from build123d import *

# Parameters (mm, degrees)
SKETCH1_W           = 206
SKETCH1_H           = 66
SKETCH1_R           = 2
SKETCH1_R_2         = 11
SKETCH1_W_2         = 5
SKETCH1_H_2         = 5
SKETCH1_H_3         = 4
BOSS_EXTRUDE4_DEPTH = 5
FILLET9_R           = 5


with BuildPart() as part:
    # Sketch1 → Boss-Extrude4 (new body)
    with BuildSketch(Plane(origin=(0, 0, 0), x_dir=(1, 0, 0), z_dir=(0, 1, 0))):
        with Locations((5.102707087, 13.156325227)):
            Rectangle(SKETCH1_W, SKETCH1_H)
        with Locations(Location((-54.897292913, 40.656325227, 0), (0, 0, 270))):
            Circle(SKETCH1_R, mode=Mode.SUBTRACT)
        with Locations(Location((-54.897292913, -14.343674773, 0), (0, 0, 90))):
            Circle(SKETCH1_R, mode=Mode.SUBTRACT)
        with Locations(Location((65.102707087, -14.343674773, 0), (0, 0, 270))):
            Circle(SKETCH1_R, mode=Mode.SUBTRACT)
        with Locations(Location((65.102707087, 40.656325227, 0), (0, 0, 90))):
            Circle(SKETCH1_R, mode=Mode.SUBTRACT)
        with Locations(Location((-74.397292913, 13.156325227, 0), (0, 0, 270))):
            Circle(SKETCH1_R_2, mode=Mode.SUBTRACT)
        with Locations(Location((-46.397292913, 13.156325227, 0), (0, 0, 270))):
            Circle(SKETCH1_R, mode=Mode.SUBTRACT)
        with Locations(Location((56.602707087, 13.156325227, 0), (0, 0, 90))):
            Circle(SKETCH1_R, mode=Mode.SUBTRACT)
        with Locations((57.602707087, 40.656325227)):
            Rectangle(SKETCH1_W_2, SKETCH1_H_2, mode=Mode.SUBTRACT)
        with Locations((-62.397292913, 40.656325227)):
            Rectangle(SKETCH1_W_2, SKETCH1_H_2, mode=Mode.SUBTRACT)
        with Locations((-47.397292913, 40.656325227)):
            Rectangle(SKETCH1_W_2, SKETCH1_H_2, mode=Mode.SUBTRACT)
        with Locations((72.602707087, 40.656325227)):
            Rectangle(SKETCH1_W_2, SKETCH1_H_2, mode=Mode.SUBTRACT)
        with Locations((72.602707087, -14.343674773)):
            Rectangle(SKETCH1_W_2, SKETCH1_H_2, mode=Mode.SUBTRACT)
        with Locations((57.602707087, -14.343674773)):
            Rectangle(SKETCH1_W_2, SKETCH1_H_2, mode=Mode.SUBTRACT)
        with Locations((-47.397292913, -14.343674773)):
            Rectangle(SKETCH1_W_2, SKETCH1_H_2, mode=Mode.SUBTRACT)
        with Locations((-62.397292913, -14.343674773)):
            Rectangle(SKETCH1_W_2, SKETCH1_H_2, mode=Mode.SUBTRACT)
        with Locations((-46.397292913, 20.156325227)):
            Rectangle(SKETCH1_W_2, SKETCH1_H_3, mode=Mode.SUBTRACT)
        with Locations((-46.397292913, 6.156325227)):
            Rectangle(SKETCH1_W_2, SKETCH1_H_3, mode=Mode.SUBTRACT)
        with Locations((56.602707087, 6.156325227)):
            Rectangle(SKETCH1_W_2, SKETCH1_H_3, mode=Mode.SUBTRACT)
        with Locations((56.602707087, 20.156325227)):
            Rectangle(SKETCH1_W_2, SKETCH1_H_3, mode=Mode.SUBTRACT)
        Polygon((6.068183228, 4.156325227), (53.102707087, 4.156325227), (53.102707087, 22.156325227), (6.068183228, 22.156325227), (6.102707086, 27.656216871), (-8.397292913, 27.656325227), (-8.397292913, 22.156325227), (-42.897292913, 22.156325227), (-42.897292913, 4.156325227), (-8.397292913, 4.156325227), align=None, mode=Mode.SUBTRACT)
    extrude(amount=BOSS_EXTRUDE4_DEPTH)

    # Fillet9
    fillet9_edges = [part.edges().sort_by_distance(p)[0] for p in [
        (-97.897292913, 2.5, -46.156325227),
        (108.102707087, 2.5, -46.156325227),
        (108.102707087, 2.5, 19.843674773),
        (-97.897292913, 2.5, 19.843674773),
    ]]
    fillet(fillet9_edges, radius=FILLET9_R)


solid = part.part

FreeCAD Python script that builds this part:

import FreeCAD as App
import Part
import Sketcher

V = App.Vector
Q = App.Units.Quantity


def edges_at(feature, points):
    """Names of the edges that pass closest to the given points."""
    edges = feature.Shape.Edges
    near = lambda p: min(range(len(edges)), key=lambda i: edges[i].distToShape(Part.Vertex(*p))[0])
    return sorted({f"Edge{near(p) + 1}" for p in points})


def add_polygon(sketch, points):
    """Adds a closed chain of lines whose ends are joined by coincident constraints."""
    first, n = sketch.GeometryCount, len(points)
    for a, b in zip(points, points[1:] + points[:1]):
        sketch.addGeometry(Part.LineSegment(App.Vector(*a, 0), App.Vector(*b, 0)), False)
    for i in range(n):
        sketch.addConstraint(Sketcher.Constraint("Coincident", first + i, 2, first + (i + 1) % n, 1))

doc = App.newDocument("Part")
params = doc.addObject("Spreadsheet::Sheet", "Params")
for row, (alias, value) in enumerate([
    ("sketch1_diameter", "4 mm"),
    ("sketch1_diameter2", "22 mm"),
    ("sketch1_width", "206 mm"),
    ("sketch1_width2", "5 mm"),
    ("sketch1_width3", "96 mm"),
    ("pad1_length", "5 mm"),
    ("fillet_radius", "5 mm"),
], start=1):
    params.set(f"A{row}", alias)
    params.set(f"B{row}", "=" + value)
    params.setAlias(f"B{row}", alias)

body = doc.addObject("PartDesign::Body", "Body")

# Sketch on XZ plane
sketch1 = body.newObject("Sketcher::SketchObject", "Sketch")
sketch1.AttachmentSupport = (doc.getObject("XZ_Plane"), [""])
sketch1.MapMode = "FlatFace"
add_polygon(sketch1, [(-97.9, -46.2), (-97.9, 19.8), (108.1, 19.8), (108.1, -46.2)])  # lines 0-3
add_polygon(sketch1, [(-59.9, 16.8), (-64.9, 16.8), (-64.9, 11.8), (-59.9, 11.8)])  # lines 4-7
sketch1.addGeometry(Part.Circle(V(-54.9, 14.3, 0), V(0, 0, 1), 2), False)  # 8
add_polygon(sketch1, [(-44.9, 16.8), (-49.9, 16.8), (-49.9, 11.8), (-44.9, 11.8)])  # lines 9-12
add_polygon(sketch1, [(-43.9, -4.2), (-48.9, -4.2), (-48.9, -8.2), (-43.9, -8.2)])  # lines 13-16
add_polygon(sketch1, [(60.1, 16.8), (55.1, 16.8), (55.1, 11.8), (60.1, 11.8)])  # lines 17-20
sketch1.addGeometry(Part.Circle(V(65.1, 14.3, 0), V(0, 0, 1), 2), False)  # 21
add_polygon(sketch1, [(75.1, 16.8), (70.1, 16.8), (70.1, 11.8), (75.1, 11.8)])  # lines 22-25
add_polygon(sketch1, [(59.1, -4.2), (54.1, -4.2), (54.1, -8.2), (59.1, -8.2)])  # lines 26-29
sketch1.addGeometry(Part.Circle(V(-74.4, -13.2, 0), V(0, 0, 1), 11), False)  # 30
sketch1.addGeometry(Part.Circle(V(-46.4, -13.2, 0), V(0, 0, 1), 2), False)  # 31
add_polygon(sketch1, [(-43.9, -18.2), (-48.9, -18.2), (-48.9, -22.2), (-43.9, -22.2)])  # lines 32-35
add_polygon(sketch1, [(-59.9, -38.2), (-64.9, -38.2), (-64.9, -43.2), (-59.9, -43.2)])  # lines 36-39
sketch1.addGeometry(Part.Circle(V(-54.9, -40.7, 0), V(0, 0, 1), 2), False)  # 40
add_polygon(sketch1, [(-44.9, -38.2), (-49.9, -38.2), (-49.9, -43.2), (-44.9, -43.2)])  # lines 41-44
add_polygon(sketch1, [(53.1, -4.2), (-42.9, -4.2), (-42.9, -22.2), (-8.4, -22.2), (-8.4, -27.7), (6.1, -27.7), (6.1, -22.2), (53.1, -22.2)])  # lines 45-52
sketch1.addGeometry(Part.Circle(V(56.6, -13.2, 0), V(0, 0, 1), 2), False)  # 53
add_polygon(sketch1, [(59.1, -18.2), (54.1, -18.2), (54.1, -22.2), (59.1, -22.2)])  # lines 54-57
add_polygon(sketch1, [(60.1, -38.2), (55.1, -38.2), (55.1, -43.2), (60.1, -43.2)])  # lines 58-61
sketch1.addGeometry(Part.Circle(V(65.1, -40.7, 0), V(0, 0, 1), 2), False)  # 62
add_polygon(sketch1, [(75.1, -38.2), (70.1, -38.2), (70.1, -43.2), (75.1, -43.2)])  # lines 63-66
sketch1.addConstraint([
    Sketcher.Constraint("Vertical", 0),
    Sketcher.Constraint("Horizontal", 1),
    Sketcher.Constraint("Vertical", 2),
    Sketcher.Constraint("Horizontal", 3),
    Sketcher.Constraint("Horizontal", 4),
    Sketcher.Constraint("Vertical", 5),
    Sketcher.Constraint("Horizontal", 6),
    Sketcher.Constraint("Vertical", 7),
    Sketcher.Constraint("Horizontal", 9),
    Sketcher.Constraint("Vertical", 10),
    Sketcher.Constraint("Horizontal", 11),
    Sketcher.Constraint("Vertical", 12),
    Sketcher.Constraint("Horizontal", 13),
    Sketcher.Constraint("Vertical", 14),
    Sketcher.Constraint("Horizontal", 15),
    Sketcher.Constraint("Vertical", 16),
    Sketcher.Constraint("Horizontal", 17),
    Sketcher.Constraint("Vertical", 18),
    Sketcher.Constraint("Horizontal", 19),
    Sketcher.Constraint("Vertical", 20),
    Sketcher.Constraint("Horizontal", 22),
    Sketcher.Constraint("Vertical", 23),
    Sketcher.Constraint("Horizontal", 24),
    Sketcher.Constraint("Vertical", 25),
    Sketcher.Constraint("Horizontal", 26),
    Sketcher.Constraint("Vertical", 27),
    Sketcher.Constraint("Horizontal", 28),
    Sketcher.Constraint("Vertical", 29),
    Sketcher.Constraint("Horizontal", 32),
    Sketcher.Constraint("Vertical", 33),
    Sketcher.Constraint("Horizontal", 34),
    Sketcher.Constraint("Vertical", 35),
    Sketcher.Constraint("Horizontal", 36),
    Sketcher.Constraint("Vertical", 37),
    Sketcher.Constraint("Horizontal", 38),
    Sketcher.Constraint("Vertical", 39),
    Sketcher.Constraint("Horizontal", 41),
    Sketcher.Constraint("Vertical", 42),
    Sketcher.Constraint("Horizontal", 43),
    Sketcher.Constraint("Vertical", 44),
    Sketcher.Constraint("Horizontal", 45),
    Sketcher.Constraint("Vertical", 46),
    Sketcher.Constraint("Horizontal", 47),
    Sketcher.Constraint("Vertical", 48),
    Sketcher.Constraint("Horizontal", 51),
    Sketcher.Constraint("Vertical", 52),
    Sketcher.Constraint("Horizontal", 54),
    Sketcher.Constraint("Vertical", 55),
    Sketcher.Constraint("Horizontal", 56),
    Sketcher.Constraint("Vertical", 57),
    Sketcher.Constraint("Horizontal", 58),
    Sketcher.Constraint("Vertical", 59),
    Sketcher.Constraint("Horizontal", 60),
    Sketcher.Constraint("Vertical", 61),
    Sketcher.Constraint("Horizontal", 63),
    Sketcher.Constraint("Vertical", 64),
    Sketcher.Constraint("Horizontal", 65),
    Sketcher.Constraint("Vertical", 66),
    Sketcher.Constraint("Equal", 8, 21),
    Sketcher.Constraint("Equal", 21, 31),
    Sketcher.Constraint("Equal", 31, 40),
    Sketcher.Constraint("Equal", 40, 53),
    Sketcher.Constraint("Equal", 53, 62),
    Sketcher.Constraint("Horizontal", 8, 3, 21, 3),
    Sketcher.Constraint("Horizontal", 30, 3, 31, 3),
    Sketcher.Constraint("Horizontal", 31, 3, 53, 3),
    Sketcher.Constraint("Horizontal", 40, 3, 62, 3),
    Sketcher.Constraint("Horizontal", 7, 2, 9, 2),
    Sketcher.Constraint("Horizontal", 6, 2, 10, 2),
    Sketcher.Constraint("Horizontal", 12, 2, 17, 2),
    Sketcher.Constraint("Horizontal", 11, 2, 18, 2),
    Sketcher.Constraint("Horizontal", 20, 2, 22, 2),
    Sketcher.Constraint("Horizontal", 19, 2, 23, 2),
    Sketcher.Constraint("Horizontal", 16, 2, 26, 2),
    Sketcher.Constraint("Horizontal", 15, 2, 27, 2),
    Sketcher.Constraint("Horizontal", 39, 2, 41, 2),
    Sketcher.Constraint("Horizontal", 38, 2, 42, 2),
    Sketcher.Constraint("Horizontal", 29, 2, 45, 2),
    Sketcher.Constraint("Horizontal", 34, 2, 46, 2),
    Sketcher.Constraint("Horizontal", 47, 2, 50, 2),
    Sketcher.Constraint("Horizontal", 35, 2, 54, 2),
    Sketcher.Constraint("Horizontal", 51, 2, 55, 2),
    Sketcher.Constraint("Horizontal", 44, 2, 58, 2),
    Sketcher.Constraint("Horizontal", 43, 2, 59, 2),
    Sketcher.Constraint("Horizontal", 61, 2, 63, 2),
    Sketcher.Constraint("Horizontal", 60, 2, 64, 2),
    Sketcher.Constraint("Vertical", 8, 3, 40, 3),
    Sketcher.Constraint("Vertical", 21, 3, 62, 3),
    Sketcher.Constraint("Vertical", 14, 2, 32, 2),
    Sketcher.Constraint("Vertical", 16, 2, 34, 2),
    Sketcher.Constraint("Vertical", 5, 2, 36, 2),
    Sketcher.Constraint("Vertical", 7, 2, 38, 2),
    Sketcher.Constraint("Vertical", 10, 2, 41, 2),
    Sketcher.Constraint("Vertical", 12, 2, 43, 2),
    Sketcher.Constraint("Vertical", 27, 2, 54, 2),
    Sketcher.Constraint("Vertical", 29, 2, 56, 2),
    Sketcher.Constraint("Vertical", 18, 2, 58, 2),
    Sketcher.Constraint("Vertical", 20, 2, 60, 2),
    Sketcher.Constraint("Vertical", 23, 2, 63, 2),
    Sketcher.Constraint("Vertical", 25, 2, 65, 2),
    Sketcher.Constraint("Equal", 6, 9),
    Sketcher.Constraint("Equal", 11, 13),
    Sketcher.Constraint("Equal", 15, 17),
    Sketcher.Constraint("Equal", 19, 22),
    Sketcher.Constraint("Equal", 24, 26),
    Sketcher.Constraint("Equal", 65, 5),
    Sketcher.Constraint("Equal", 29, 33),
    Sketcher.Constraint("Equal", 25, 37),
    Sketcher.Constraint("Diameter", 8, Q("4 mm")),
    Sketcher.Constraint("Diameter", 30, Q("22 mm")),
    Sketcher.Constraint("DistanceX", 1, 1, 1, 2, Q("206 mm")),
    Sketcher.Constraint("DistanceX", 4, 2, 4, 1, Q("5 mm")),
    Sketcher.Constraint("DistanceX", 45, 2, 45, 1, Q("96 mm")),
    Sketcher.Constraint("DistanceY", 0, 1, 0, 2, Q("66 mm")),
    Sketcher.Constraint("DistanceY", 14, 2, 14, 1, Q("4 mm")),
    Sketcher.Constraint("DistanceY", 46, 2, 46, 1, Q("18 mm")),
    Sketcher.Constraint("DistanceX", 47, 1, 47, 2, Q("34.5 mm")),
    Sketcher.Constraint("DistanceY", 48, 2, 48, 1, Q("5.5 mm")),
    Sketcher.Constraint("Distance", 49, Q("14.5 mm")),
    Sketcher.Constraint("Distance", 50, Q("5.5 mm")),
    Sketcher.Constraint("DistanceX", 51, 1, 51, 2, Q("47.034524 mm")),
    Sketcher.Constraint("DistanceX", 8, 3, -1, 1, Q("54.897293 mm")),
    Sketcher.Constraint("DistanceY", -1, 1, 8, 3, Q("14.343675 mm")),
    Sketcher.Constraint("DistanceX", -1, 1, 21, 3, Q("65.102707 mm")),
    Sketcher.Constraint("DistanceX", 30, 3, -1, 1, Q("74.397293 mm")),
    Sketcher.Constraint("DistanceY", 30, 3, -1, 1, Q("13.156325 mm")),
    Sketcher.Constraint("DistanceX", 31, 3, -1, 1, Q("46.397293 mm")),
    Sketcher.Constraint("DistanceY", 40, 3, -1, 1, Q("40.656325 mm")),
    Sketcher.Constraint("DistanceX", -1, 1, 53, 3, Q("56.602707 mm")),
    Sketcher.Constraint("DistanceX", 0, 2, -1, 1, Q("97.897293 mm")),
    Sketcher.Constraint("DistanceY", -1, 1, 0, 2, Q("19.843675 mm")),
    Sketcher.Constraint("DistanceX", 4, 2, -1, 1, Q("64.897293 mm")),
    Sketcher.Constraint("DistanceY", -1, 1, 4, 2, Q("16.843675 mm")),
    Sketcher.Constraint("DistanceX", 9, 2, -1, 1, Q("49.897293 mm")),
    Sketcher.Constraint("DistanceX", 13, 2, -1, 1, Q("48.897293 mm")),
    Sketcher.Constraint("DistanceY", 13, 2, -1, 1, Q("4.156325 mm")),
    Sketcher.Constraint("DistanceX", -1, 1, 17, 2, Q("55.102707 mm")),
    Sketcher.Constraint("DistanceX", -1, 1, 22, 2, Q("70.102707 mm")),
    Sketcher.Constraint("DistanceX", -1, 1, 26, 2, Q("54.102707 mm")),
    Sketcher.Constraint("DistanceY", 36, 2, -1, 1, Q("38.156325 mm")),
    Sketcher.Constraint("DistanceX", 45, 2, -1, 1, Q("42.897293 mm")),
])
sketch1.setExpression("Constraints[168]", "Params.sketch1_diameter")
sketch1.setExpression("Constraints[169]", "Params.sketch1_diameter2")
sketch1.setExpression("Constraints[170]", "Params.sketch1_width")
sketch1.setExpression("Constraints[171]", "Params.sketch1_width2")
sketch1.setExpression("Constraints[172]", "Params.sketch1_width3")
pad1 = body.newObject("PartDesign::Pad", "Pad")
pad1.Profile = sketch1
pad1.setExpression("Length", "Params.pad1_length")
pad1.Reversed = True
doc.recompute()

fillet = body.newObject("PartDesign::Fillet", "Fillet")
fillet.Base = (pad1, edges_at(pad1, [
    (-97.897, 2.5, -46.156),
    (108.103, 2.5, -46.156),
    (108.103, 2.5, 19.844),
    (-97.897, 2.5, 19.844),
]))
fillet.setExpression("Radius", "Params.fillet_radius")

doc.recompute()
